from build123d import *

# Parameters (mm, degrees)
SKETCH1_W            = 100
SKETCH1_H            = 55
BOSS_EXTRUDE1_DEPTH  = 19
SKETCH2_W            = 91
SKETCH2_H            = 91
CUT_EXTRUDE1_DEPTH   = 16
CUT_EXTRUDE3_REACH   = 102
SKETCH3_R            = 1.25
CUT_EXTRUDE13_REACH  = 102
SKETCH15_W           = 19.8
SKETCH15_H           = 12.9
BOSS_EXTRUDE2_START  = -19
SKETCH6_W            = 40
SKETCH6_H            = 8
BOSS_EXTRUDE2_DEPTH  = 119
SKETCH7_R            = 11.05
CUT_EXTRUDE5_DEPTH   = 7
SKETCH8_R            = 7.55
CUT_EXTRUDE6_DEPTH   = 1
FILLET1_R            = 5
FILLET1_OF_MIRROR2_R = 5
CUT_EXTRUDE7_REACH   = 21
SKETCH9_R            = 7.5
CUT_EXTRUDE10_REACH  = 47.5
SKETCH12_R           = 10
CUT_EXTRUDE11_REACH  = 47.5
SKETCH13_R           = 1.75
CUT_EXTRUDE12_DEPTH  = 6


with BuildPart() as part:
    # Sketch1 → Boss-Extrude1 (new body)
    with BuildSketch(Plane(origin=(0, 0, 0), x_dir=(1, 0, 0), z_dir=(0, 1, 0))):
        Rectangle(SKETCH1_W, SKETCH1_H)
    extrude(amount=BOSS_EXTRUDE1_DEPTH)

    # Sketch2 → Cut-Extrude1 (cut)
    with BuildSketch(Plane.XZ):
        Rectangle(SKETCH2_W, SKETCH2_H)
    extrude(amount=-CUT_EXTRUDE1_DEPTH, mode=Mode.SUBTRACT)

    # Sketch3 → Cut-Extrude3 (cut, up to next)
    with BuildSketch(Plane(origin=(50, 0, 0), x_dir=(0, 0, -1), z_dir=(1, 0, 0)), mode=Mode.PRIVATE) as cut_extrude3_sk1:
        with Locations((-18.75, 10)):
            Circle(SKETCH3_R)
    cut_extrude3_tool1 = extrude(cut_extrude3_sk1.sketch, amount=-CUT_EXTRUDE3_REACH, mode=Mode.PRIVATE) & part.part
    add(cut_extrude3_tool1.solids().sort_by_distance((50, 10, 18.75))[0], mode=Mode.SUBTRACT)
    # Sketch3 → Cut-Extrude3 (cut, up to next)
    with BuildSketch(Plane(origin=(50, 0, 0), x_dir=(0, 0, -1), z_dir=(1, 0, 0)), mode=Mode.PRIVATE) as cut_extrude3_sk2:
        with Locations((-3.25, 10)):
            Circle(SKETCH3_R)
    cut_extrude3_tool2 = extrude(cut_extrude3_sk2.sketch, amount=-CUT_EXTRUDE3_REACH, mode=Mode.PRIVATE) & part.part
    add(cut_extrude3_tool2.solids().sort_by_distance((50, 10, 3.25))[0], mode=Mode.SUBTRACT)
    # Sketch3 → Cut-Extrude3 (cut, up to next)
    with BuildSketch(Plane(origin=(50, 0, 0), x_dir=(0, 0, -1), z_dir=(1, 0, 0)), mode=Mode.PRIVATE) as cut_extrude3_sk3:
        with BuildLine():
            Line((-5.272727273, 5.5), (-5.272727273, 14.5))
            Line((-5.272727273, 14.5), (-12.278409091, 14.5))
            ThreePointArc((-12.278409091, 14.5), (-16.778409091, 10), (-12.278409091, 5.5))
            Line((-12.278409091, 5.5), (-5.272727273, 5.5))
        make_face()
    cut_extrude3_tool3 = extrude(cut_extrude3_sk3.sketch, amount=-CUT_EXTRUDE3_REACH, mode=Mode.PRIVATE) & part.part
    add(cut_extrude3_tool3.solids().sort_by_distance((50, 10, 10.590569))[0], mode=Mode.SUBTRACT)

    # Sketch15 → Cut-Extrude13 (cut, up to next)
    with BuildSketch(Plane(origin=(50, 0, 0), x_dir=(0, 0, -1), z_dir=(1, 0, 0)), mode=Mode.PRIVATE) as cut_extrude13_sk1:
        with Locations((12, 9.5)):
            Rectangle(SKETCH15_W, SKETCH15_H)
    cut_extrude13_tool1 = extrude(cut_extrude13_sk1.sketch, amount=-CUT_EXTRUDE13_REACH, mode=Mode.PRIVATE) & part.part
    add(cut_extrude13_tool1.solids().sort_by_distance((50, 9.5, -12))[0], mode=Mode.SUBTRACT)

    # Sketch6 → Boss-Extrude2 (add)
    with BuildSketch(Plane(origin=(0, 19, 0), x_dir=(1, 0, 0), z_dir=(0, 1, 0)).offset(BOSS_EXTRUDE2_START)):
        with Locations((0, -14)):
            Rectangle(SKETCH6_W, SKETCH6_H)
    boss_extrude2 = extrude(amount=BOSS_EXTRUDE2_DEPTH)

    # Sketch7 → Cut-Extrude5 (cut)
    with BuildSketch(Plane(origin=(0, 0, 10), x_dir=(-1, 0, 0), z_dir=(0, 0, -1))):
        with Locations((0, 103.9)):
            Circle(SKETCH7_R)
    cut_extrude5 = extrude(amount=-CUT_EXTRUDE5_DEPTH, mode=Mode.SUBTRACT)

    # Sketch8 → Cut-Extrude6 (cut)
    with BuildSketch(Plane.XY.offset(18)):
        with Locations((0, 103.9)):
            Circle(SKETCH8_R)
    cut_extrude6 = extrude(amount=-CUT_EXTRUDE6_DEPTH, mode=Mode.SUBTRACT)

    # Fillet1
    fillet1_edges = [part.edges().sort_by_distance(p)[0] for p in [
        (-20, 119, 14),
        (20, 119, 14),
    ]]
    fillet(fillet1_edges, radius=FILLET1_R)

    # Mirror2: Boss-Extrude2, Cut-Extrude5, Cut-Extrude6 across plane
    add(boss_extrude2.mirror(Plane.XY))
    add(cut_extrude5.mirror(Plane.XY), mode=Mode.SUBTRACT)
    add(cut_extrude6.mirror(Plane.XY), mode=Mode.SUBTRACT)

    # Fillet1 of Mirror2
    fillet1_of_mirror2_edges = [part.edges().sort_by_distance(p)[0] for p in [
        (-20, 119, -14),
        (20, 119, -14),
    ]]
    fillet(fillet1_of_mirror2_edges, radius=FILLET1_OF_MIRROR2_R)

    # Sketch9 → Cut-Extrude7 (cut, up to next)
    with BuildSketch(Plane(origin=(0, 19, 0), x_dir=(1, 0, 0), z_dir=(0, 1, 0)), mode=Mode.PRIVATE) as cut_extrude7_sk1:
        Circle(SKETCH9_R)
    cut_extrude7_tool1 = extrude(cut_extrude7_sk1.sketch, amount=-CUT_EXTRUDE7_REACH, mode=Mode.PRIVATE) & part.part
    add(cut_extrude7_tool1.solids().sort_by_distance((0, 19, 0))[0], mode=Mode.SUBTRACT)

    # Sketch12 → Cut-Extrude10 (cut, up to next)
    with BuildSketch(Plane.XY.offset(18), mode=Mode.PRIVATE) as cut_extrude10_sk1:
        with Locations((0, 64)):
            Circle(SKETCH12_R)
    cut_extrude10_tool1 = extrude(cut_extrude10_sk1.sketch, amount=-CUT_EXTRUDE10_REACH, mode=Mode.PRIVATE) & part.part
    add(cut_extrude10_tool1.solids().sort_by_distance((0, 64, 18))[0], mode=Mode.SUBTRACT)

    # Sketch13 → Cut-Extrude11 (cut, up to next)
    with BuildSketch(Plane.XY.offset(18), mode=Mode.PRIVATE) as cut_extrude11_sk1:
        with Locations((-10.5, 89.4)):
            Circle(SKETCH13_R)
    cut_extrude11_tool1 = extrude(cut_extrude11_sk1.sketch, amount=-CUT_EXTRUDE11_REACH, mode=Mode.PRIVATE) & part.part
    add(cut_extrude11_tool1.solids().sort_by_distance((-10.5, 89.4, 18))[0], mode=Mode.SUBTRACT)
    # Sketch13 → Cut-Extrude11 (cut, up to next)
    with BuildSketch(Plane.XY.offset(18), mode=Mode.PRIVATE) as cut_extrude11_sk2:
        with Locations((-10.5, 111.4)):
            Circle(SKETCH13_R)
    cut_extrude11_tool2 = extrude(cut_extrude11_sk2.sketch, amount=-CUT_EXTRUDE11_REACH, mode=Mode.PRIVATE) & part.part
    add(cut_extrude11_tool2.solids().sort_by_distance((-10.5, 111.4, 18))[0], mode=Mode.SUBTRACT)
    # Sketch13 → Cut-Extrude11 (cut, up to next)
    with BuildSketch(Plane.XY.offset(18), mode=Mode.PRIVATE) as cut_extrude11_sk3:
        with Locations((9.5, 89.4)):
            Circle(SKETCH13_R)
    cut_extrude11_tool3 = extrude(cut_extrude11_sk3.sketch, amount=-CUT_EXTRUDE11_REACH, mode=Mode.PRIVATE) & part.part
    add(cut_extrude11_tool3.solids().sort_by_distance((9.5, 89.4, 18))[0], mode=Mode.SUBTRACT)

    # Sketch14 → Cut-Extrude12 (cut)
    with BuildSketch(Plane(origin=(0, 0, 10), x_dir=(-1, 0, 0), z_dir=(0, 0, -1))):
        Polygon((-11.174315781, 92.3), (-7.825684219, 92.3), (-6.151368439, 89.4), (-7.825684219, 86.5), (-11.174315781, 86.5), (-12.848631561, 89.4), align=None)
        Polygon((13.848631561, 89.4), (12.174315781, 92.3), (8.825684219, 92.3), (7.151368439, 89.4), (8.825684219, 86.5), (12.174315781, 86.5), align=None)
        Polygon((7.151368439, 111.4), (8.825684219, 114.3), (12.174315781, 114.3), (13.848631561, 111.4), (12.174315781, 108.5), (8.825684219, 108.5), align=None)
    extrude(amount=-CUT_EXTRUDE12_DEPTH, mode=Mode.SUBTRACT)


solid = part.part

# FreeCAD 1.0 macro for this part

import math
import FreeCAD as App
import Part
import Sketcher
Q = App.Units.Quantity


def edges_at(feature, points):
    """Names of the edges that pass closest to the given points."""
    edges = feature.Shape.Edges
    near = lambda p: min(range(len(edges)), key=lambda i: edges[i].distToShape(Part.Vertex(*p))[0])
    return sorted({f"Edge{near(p) + 1}" for p in points})


def add_polygon(sketch, points):
    """Adds a closed chain of lines whose ends are joined by coincident constraints."""
    first, n = sketch.GeometryCount, len(points)
    for a, b in zip(points, points[1:] + points[:1]):
        sketch.addGeometry(Part.LineSegment(App.Vector(*a, 0), App.Vector(*b, 0)), False)
    for i in range(n):
        sketch.addConstraint(Sketcher.Constraint("Coincident", first + i, 2, first + (i + 1) % n, 1))

doc = App.newDocument("Part")
body = doc.addObject("PartDesign::Body", "Body")

# Sketch on XZ plane
sketch1 = body.newObject("Sketcher::SketchObject", "Sketch")
sketch1.AttachmentSupport = (doc.getObject("XZ_Plane"), [""])
sketch1.MapMode = "FlatFace"
add_polygon(sketch1, [(-50, -27.5), (-50, 27.5), (50, 27.5), (50, -27.5)])  # lines 0-3
sketch1.addConstraint([
    Sketcher.Constraint("Vertical", 0),
    Sketcher.Constraint("Horizontal", 1),
    Sketcher.Constraint("Vertical", 2),
    Sketcher.Constraint("Horizontal", 3),
    Sketcher.Constraint("Symmetric", 0, 2, 2, 2, -1, 1),
    Sketcher.Constraint("DistanceX", 1, 1, 1, 2, Q("100 mm")),
    Sketcher.Constraint("DistanceY", 0, 1, 0, 2, Q("55 mm")),
])
pad1 = body.newObject("PartDesign::Pad", "Pad")
pad1.Profile = sketch1
pad1.Length = 19
pad1.Reversed = True

# Sketch on XZ plane
sketch2 = body.newObject("Sketcher::SketchObject", "Sketch001")
sketch2.AttachmentSupport = (doc.getObject("XZ_Plane"), [""])
sketch2.MapMode = "FlatFace"
add_polygon(sketch2, [(-45.5, 45.5), (-45.5, -45.5), (45.5, -45.5), (45.5, 45.5)])  # lines 0-3
sketch2.addConstraint([
    Sketcher.Constraint("Vertical", 0),
    Sketcher.Constraint("Horizontal", 1),
    Sketcher.Constraint("Vertical", 2),
    Sketcher.Constraint("Horizontal", 3),
    Sketcher.Constraint("Symmetric", 0, 2, 2, 2, -1, 1),
    Sketcher.Constraint("Equal", 3, 0),
    Sketcher.Constraint("DistanceX", 1, 1, 1, 2, Q("91 mm")),
])
pocket1 = body.newObject("PartDesign::Pocket", "Pocket")
pocket1.Profile = sketch2
pocket1.Length = 16

# Sketch on YZ plane
sketch3 = body.newObject("Sketcher::SketchObject", "Sketch002")
sketch3.AttachmentSupport = (doc.getObject("YZ_Plane"), [""])
sketch3.MapMode = "FlatFace"
sketch3.AttachmentOffset = App.Placement(App.Vector(0, 0, 50), App.Rotation())
sketch3.addGeometry(Part.Circle(App.Vector(10, 18.75, 0), App.Vector(0, 0, 1), 1.25), False)
sketch3.addConstraint([
    Sketcher.Constraint("Diameter", 0, Q("2.5 mm")),
    Sketcher.Constraint("DistanceX", -1, 1, 0, 3, Q("10 mm")),
    Sketcher.Constraint("DistanceY", -1, 1, 0, 3, Q("18.75 mm")),
])
pocket2 = body.newObject("PartDesign::Pocket", "Pocket001")
pocket2.Profile = sketch3
pocket2.Type = "UpToFirst"

# Sketch on YZ plane
sketch4 = body.newObject("Sketcher::SketchObject", "Sketch003")
sketch4.AttachmentSupport = (doc.getObject("YZ_Plane"), [""])
sketch4.MapMode = "FlatFace"
sketch4.AttachmentOffset = App.Placement(App.Vector(0, 0, 50), App.Rotation())
sketch4.addGeometry(Part.Circle(App.Vector(10, 3.25, 0), App.Vector(0, 0, 1), 1.25), False)
sketch4.addConstraint([
    Sketcher.Constraint("Diameter", 0, Q("2.5 mm")),
    Sketcher.Constraint("DistanceX", -1, 1, 0, 3, Q("10 mm")),
    Sketcher.Constraint("DistanceY", -1, 1, 0, 3, Q("3.25 mm")),
])
pocket3 = body.newObject("PartDesign::Pocket", "Pocket002")
pocket3.Profile = sketch4
pocket3.Type = "UpToFirst"

# Sketch on YZ plane
sketch5 = body.newObject("Sketcher::SketchObject", "Sketch004")
sketch5.AttachmentSupport = (doc.getObject("YZ_Plane"), [""])
sketch5.MapMode = "FlatFace"
sketch5.AttachmentOffset = App.Placement(App.Vector(0, 0, 50), App.Rotation())
sketch5.addGeometry([
    Part.LineSegment(App.Vector(5.5, 5.272727, 0), App.Vector(14.5, 5.272727, 0)),
    Part.LineSegment(App.Vector(14.5, 5.272727, 0), App.Vector(14.5, 12.278409, 0)),
    Part.ArcOfCircle(Part.Circle(App.Vector(10, 12.278409, 0), App.Vector(0, 0, 1), 4.5), math.radians(0), math.radians(180)),
    Part.LineSegment(App.Vector(5.5, 12.278409, 0), App.Vector(5.5, 5.272727, 0)),
], False)
sketch5.addConstraint([
    Sketcher.Constraint("Coincident", 0, 2, 1, 1),
    Sketcher.Constraint("Tangent", 1, 2, 2, 1),
    Sketcher.Constraint("Tangent", 2, 2, 3, 1),
    Sketcher.Constraint("Coincident", 3, 2, 0, 1),
    Sketcher.Constraint("Horizontal", 0),
    Sketcher.Constraint("Vertical", 1),
    Sketcher.Constraint("Vertical", 3),
    Sketcher.Constraint("Radius", 2, Q("4.5 mm")),
    Sketcher.Constraint("DistanceX", -1, 1, 2, 3, Q("10 mm")),
    Sketcher.Constraint("DistanceY", 1, 1, 1, 2, Q("7.005682 mm")),
    Sketcher.Constraint("DistanceY", -1, 1, 2, 3, Q("12.278409 mm")),
])
pocket4 = body.newObject("PartDesign::Pocket", "Pocket003")
pocket4.Profile = sketch5
pocket4.Type = "UpToFirst"

# Sketch on YZ plane
sketch6 = body.newObject("Sketcher::SketchObject", "Sketch005")
sketch6.AttachmentSupport = (doc.getObject("YZ_Plane"), [""])
sketch6.MapMode = "FlatFace"
sketch6.AttachmentOffset = App.Placement(App.Vector(0, 0, 50), App.Rotation())
add_polygon(sketch6, [(15.95, -2.1), (3.05, -2.1), (3.05, -21.9), (15.95, -21.9)])  # lines 0-3
sketch6.addConstraint([
    Sketcher.Constraint("Horizontal", 0),
    Sketcher.Constraint("Vertical", 1),
    Sketcher.Constraint("Horizontal", 2),
    Sketcher.Constraint("Vertical", 3),
    Sketcher.Constraint("DistanceX", 0, 2, 0, 1, Q("12.9 mm")),
    Sketcher.Constraint("DistanceY", 1, 2, 1, 1, Q("19.8 mm")),
    Sketcher.Constraint("DistanceY", 0, 2, -1, 1, Q("2.1 mm")),
    Sketcher.Constraint("DistanceX", -1, 1, 0, 2, Q("3.05 mm")),
])
pocket5 = body.newObject("PartDesign::Pocket", "Pocket004")
pocket5.Profile = sketch6
pocket5.Type = "UpToFirst"

# Sketch on XZ plane
sketch7 = body.newObject("Sketcher::SketchObject", "Sketch006")
sketch7.AttachmentSupport = (doc.getObject("XZ_Plane"), [""])
sketch7.MapMode = "FlatFace"
add_polygon(sketch7, [(-20, 10), (-20, 18), (20, 18), (20, 10)])  # lines 0-3
sketch7.addConstraint([
    Sketcher.Constraint("Vertical", 0),
    Sketcher.Constraint("Horizontal", 1),
    Sketcher.Constraint("Vertical", 2),
    Sketcher.Constraint("Horizontal", 3),
    Sketcher.Constraint("DistanceX", 1, 1, 1, 2, Q("40 mm")),
    Sketcher.Constraint("DistanceY", 0, 1, 0, 2, Q("8 mm")),
    Sketcher.Constraint("DistanceX", 0, 2, -1, 1, Q("20 mm")),
    Sketcher.Constraint("DistanceY", -1, 1, 0, 2, Q("18 mm")),
])
pad2 = body.newObject("PartDesign::Pad", "Pad001")
pad2.Profile = sketch7
pad2.Length = 119
pad2.Reversed = True

# Sketch on XY plane
sketch8 = body.newObject("Sketcher::SketchObject", "Sketch007")
sketch8.AttachmentSupport = (doc.getObject("XY_Plane"), [""])
sketch8.MapMode = "FlatFace"
sketch8.AttachmentOffset = App.Placement(App.Vector(0, 0, 10), App.Rotation())
sketch8.addGeometry(Part.Circle(App.Vector(0, 103.9, 0), App.Vector(0, 0, 1), 11.05), False)
sketch8.addConstraint([
    Sketcher.Constraint("PointOnObject", 0, 3, -2),
    Sketcher.Constraint("Diameter", 0, Q("22.1 mm")),
    Sketcher.Constraint("DistanceY", -1, 1, 0, 3, Q("103.9 mm")),
])
pocket6 = body.newObject("PartDesign::Pocket", "Pocket005")
pocket6.Profile = sketch8
pocket6.Length = 7
pocket6.Reversed = True

# Sketch on XY plane
sketch9 = body.newObject("Sketcher::SketchObject", "Sketch008")
sketch9.AttachmentSupport = (doc.getObject("XY_Plane"), [""])
sketch9.MapMode = "FlatFace"
sketch9.AttachmentOffset = App.Placement(App.Vector(0, 0, 18), App.Rotation())
sketch9.addGeometry(Part.Circle(App.Vector(0, 103.9, 0), App.Vector(0, 0, 1), 7.55), False)
sketch9.addConstraint([
    Sketcher.Constraint("PointOnObject", 0, 3, -2),
    Sketcher.Constraint("Diameter", 0, Q("15.1 mm")),
    Sketcher.Constraint("DistanceY", -1, 1, 0, 3, Q("103.9 mm")),
])
pocket7 = body.newObject("PartDesign::Pocket", "Pocket006")
pocket7.Profile = sketch9
pocket7.Length = 1
doc.recompute()

fillet = body.newObject("PartDesign::Fillet", "Fillet")
fillet.Base = (pocket7, edges_at(pocket7, [(-20, 119, 14), (20, 119, 14)]))
fillet.Radius = 5
doc.recompute()

mirrored = body.newObject("PartDesign::Mirrored", "Mirrored")
mirrored.Originals = [pad2, pocket6, pocket7]
mirrored.MirrorPlane = (doc.getObject("XY_Plane"), [""])
body.Tip = mirrored
doc.recompute()

fillet2 = body.newObject("PartDesign::Fillet", "Fillet001")
fillet2.Base = (mirrored, edges_at(mirrored, [(-20, 119, -14), (20, 119, -14)]))
fillet2.Radius = 5

# Sketch on XZ plane
sketch10 = body.newObject("Sketcher::SketchObject", "Sketch009")
sketch10.AttachmentSupport = (doc.getObject("XZ_Plane"), [""])
sketch10.MapMode = "FlatFace"
sketch10.AttachmentOffset = App.Placement(App.Vector(0, 0, -19), App.Rotation())
sketch10.addGeometry(Part.Circle(App.Vector(0, 0, 0), App.Vector(0, 0, 1), 7.5), False)
sketch10.addConstraint([
    Sketcher.Constraint("Coincident", 0, 3, -1, 1),
    Sketcher.Constraint("Diameter", 0, Q("15 mm")),
])
pocket8 = body.newObject("PartDesign::Pocket", "Pocket007")
pocket8.Profile = sketch10
pocket8.Type = "UpToFirst"
pocket8.Reversed = True

# Sketch on XY plane
sketch11 = body.newObject("Sketcher::SketchObject", "Sketch010")
sketch11.AttachmentSupport = (doc.getObject("XY_Plane"), [""])
sketch11.MapMode = "FlatFace"
sketch11.AttachmentOffset = App.Placement(App.Vector(0, 0, 18), App.Rotation())
sketch11.addGeometry(Part.Circle(App.Vector(0, 64, 0), App.Vector(0, 0, 1), 10), False)
sketch11.addConstraint([
    Sketcher.Constraint("PointOnObject", 0, 3, -2),
    Sketcher.Constraint("Diameter", 0, Q("20 mm")),
    Sketcher.Constraint("DistanceY", -1, 1, 0, 3, Q("64 mm")),
])
pocket9 = body.newObject("PartDesign::Pocket", "Pocket008")
pocket9.Profile = sketch11
pocket9.Type = "UpToFirst"

# Sketch on XY plane
sketch12 = body.newObject("Sketcher::SketchObject", "Sketch011")
sketch12.AttachmentSupport = (doc.getObject("XY_Plane"), [""])
sketch12.MapMode = "FlatFace"
sketch12.AttachmentOffset = App.Placement(App.Vector(0, 0, 18), App.Rotation())
sketch12.addGeometry(Part.Circle(App.Vector(-10.5, 89.4, 0), App.Vector(0, 0, 1), 1.75), False)
sketch12.addConstraint([
    Sketcher.Constraint("Diameter", 0, Q("3.5 mm")),
    Sketcher.Constraint("DistanceX", 0, 3, -1, 1, Q("10.5 mm")),
    Sketcher.Constraint("DistanceY", -1, 1, 0, 3, Q("89.4 mm")),
])
pocket10 = body.newObject("PartDesign::Pocket", "Pocket009")
pocket10.Profile = sketch12
pocket10.Type = "UpToFirst"

# Sketch on XY plane
sketch13 = body.newObject("Sketcher::SketchObject", "Sketch012")
sketch13.AttachmentSupport = (doc.getObject("XY_Plane"), [""])
sketch13.MapMode = "FlatFace"
sketch13.AttachmentOffset = App.Placement(App.Vector(0, 0, 18), App.Rotation())
sketch13.addGeometry(Part.Circle(App.Vector(-10.5, 111.4, 0), App.Vector(0, 0, 1), 1.75), False)
sketch13.addConstraint([
    Sketcher.Constraint("Diameter", 0, Q("3.5 mm")),
    Sketcher.Constraint("DistanceX", 0, 3, -1, 1, Q("10.5 mm")),
    Sketcher.Constraint("DistanceY", -1, 1, 0, 3, Q("111.4 mm")),
])
pocket11 = body.newObject("PartDesign::Pocket", "Pocket010")
pocket11.Profile = sketch13
pocket11.Type = "UpToFirst"

# Sketch on XY plane
sketch14 = body.newObject("Sketcher::SketchObject", "Sketch013")
sketch14.AttachmentSupport = (doc.getObject("XY_Plane"), [""])
sketch14.MapMode = "FlatFace"
sketch14.AttachmentOffset = App.Placement(App.Vector(0, 0, 18), App.Rotation())
sketch14.addGeometry(Part.Circle(App.Vector(9.5, 89.4, 0), App.Vector(0, 0, 1), 1.75), False)
sketch14.addConstraint([
    Sketcher.Constraint("Diameter", 0, Q("3.5 mm")),
    Sketcher.Constraint("DistanceX", -1, 1, 0, 3, Q("9.5 mm")),
    Sketcher.Constraint("DistanceY", -1, 1, 0, 3, Q("89.4 mm")),
])
pocket12 = body.newObject("PartDesign::Pocket", "Pocket011")
pocket12.Profile = sketch14
pocket12.Type = "UpToFirst"

# Sketch on XY plane
sketch15 = body.newObject("Sketcher::SketchObject", "Sketch014")
sketch15.AttachmentSupport = (doc.getObject("XY_Plane"), [""])
sketch15.MapMode = "FlatFace"
sketch15.AttachmentOffset = App.Placement(App.Vector(0, 0, 10), App.Rotation())
add_polygon(sketch15, [(7.825684, 92.3), (11.174316, 92.3), (12.848632, 89.4), (11.174316, 86.5), (7.825684, 86.5), (6.151368, 89.4)])  # lines 0-5
add_polygon(sketch15, [(-13.848632, 89.4), (-12.174316, 92.3), (-8.825684, 92.3), (-7.151368, 89.4), (-8.825684, 86.5), (-12.174316, 86.5)])  # lines 6-11
add_polygon(sketch15, [(-8.825684, 114.3), (-7.151368, 111.4), (-8.825684, 108.5), (-12.174316, 108.5), (-13.848632, 111.4), (-12.174316, 114.3)])  # lines 12-17
sketch15.addConstraint([
    Sketcher.Constraint("Horizontal", 0),
    Sketcher.Constraint("Horizontal", 3),
    Sketcher.Constraint("Horizontal", 7),
    Sketcher.Constraint("Horizontal", 10),
    Sketcher.Constraint("Horizontal", 14),
    Sketcher.Constraint("Horizontal", 17),
    Sketcher.Constraint("Parallel", 1, 4),
    Sketcher.Constraint("Parallel", 2, 5),
    Sketcher.Constraint("Parallel", 5, 6),
    Sketcher.Constraint("Parallel", 4, 8),
    Sketcher.Constraint("Parallel", 6, 9),
    Sketcher.Constraint("Parallel", 8, 11),
    Sketcher.Constraint("Parallel", 11, 12),
    Sketcher.Constraint("Parallel", 9, 13),
    Sketcher.Constraint("Parallel", 12, 15),
    Sketcher.Constraint("Parallel", 13, 16),
    Sketcher.Constraint("Horizontal", 1, 2, 4, 2),
    Sketcher.Constraint("Horizontal", 5, 2, 6, 2),
    Sketcher.Constraint("Horizontal", 4, 2, 8, 2),
    Sketcher.Constraint("Horizontal", 3, 2, 9, 2),
    Sketcher.Constraint("Horizontal", 8, 2, 11, 2),
    Sketcher.Constraint("Horizontal", 12, 2, 15, 2),
    Sketcher.Constraint("Vertical", 0, 2, 2, 2),
    Sketcher.Constraint("Vertical", 3, 2, 5, 2),
    Sketcher.Constraint("Vertical", 8, 2, 12, 2),
    Sketcher.Constraint("Vertical", 9, 2, 13, 2),
    Sketcher.Constraint("Vertical", 10, 2, 14, 2),
    Sketcher.Constraint("Vertical", 14, 2, 16, 2),
    Sketcher.Constraint("Equal", 3, 7),
    Sketcher.Constraint("Angle", 1, Q("-60 deg")),
    Sketcher.Constraint("DistanceX", 6, 2, 5, 2, Q("20 mm")),
    Sketcher.Constraint("DistanceY", 8, 2, 12, 2, Q("22 mm")),
    Sketcher.Constraint("DistanceY", -1, 1, 0, 2, Q("92.3 mm")),
    Sketcher.Constraint("DistanceY", -1, 1, 1, 2, Q("89.4 mm")),
    Sketcher.Constraint("DistanceX", 0, 1, 0, 2, Q("3.348632 mm")),
    Sketcher.Constraint("DistanceX", -1, 1, 1, 2, Q("12.848632 mm")),
])
pocket13 = body.newObject("PartDesign::Pocket", "Pocket012")
pocket13.Profile = sketch15
pocket13.Length = 6
pocket13.Reversed = True

doc.recompute()
